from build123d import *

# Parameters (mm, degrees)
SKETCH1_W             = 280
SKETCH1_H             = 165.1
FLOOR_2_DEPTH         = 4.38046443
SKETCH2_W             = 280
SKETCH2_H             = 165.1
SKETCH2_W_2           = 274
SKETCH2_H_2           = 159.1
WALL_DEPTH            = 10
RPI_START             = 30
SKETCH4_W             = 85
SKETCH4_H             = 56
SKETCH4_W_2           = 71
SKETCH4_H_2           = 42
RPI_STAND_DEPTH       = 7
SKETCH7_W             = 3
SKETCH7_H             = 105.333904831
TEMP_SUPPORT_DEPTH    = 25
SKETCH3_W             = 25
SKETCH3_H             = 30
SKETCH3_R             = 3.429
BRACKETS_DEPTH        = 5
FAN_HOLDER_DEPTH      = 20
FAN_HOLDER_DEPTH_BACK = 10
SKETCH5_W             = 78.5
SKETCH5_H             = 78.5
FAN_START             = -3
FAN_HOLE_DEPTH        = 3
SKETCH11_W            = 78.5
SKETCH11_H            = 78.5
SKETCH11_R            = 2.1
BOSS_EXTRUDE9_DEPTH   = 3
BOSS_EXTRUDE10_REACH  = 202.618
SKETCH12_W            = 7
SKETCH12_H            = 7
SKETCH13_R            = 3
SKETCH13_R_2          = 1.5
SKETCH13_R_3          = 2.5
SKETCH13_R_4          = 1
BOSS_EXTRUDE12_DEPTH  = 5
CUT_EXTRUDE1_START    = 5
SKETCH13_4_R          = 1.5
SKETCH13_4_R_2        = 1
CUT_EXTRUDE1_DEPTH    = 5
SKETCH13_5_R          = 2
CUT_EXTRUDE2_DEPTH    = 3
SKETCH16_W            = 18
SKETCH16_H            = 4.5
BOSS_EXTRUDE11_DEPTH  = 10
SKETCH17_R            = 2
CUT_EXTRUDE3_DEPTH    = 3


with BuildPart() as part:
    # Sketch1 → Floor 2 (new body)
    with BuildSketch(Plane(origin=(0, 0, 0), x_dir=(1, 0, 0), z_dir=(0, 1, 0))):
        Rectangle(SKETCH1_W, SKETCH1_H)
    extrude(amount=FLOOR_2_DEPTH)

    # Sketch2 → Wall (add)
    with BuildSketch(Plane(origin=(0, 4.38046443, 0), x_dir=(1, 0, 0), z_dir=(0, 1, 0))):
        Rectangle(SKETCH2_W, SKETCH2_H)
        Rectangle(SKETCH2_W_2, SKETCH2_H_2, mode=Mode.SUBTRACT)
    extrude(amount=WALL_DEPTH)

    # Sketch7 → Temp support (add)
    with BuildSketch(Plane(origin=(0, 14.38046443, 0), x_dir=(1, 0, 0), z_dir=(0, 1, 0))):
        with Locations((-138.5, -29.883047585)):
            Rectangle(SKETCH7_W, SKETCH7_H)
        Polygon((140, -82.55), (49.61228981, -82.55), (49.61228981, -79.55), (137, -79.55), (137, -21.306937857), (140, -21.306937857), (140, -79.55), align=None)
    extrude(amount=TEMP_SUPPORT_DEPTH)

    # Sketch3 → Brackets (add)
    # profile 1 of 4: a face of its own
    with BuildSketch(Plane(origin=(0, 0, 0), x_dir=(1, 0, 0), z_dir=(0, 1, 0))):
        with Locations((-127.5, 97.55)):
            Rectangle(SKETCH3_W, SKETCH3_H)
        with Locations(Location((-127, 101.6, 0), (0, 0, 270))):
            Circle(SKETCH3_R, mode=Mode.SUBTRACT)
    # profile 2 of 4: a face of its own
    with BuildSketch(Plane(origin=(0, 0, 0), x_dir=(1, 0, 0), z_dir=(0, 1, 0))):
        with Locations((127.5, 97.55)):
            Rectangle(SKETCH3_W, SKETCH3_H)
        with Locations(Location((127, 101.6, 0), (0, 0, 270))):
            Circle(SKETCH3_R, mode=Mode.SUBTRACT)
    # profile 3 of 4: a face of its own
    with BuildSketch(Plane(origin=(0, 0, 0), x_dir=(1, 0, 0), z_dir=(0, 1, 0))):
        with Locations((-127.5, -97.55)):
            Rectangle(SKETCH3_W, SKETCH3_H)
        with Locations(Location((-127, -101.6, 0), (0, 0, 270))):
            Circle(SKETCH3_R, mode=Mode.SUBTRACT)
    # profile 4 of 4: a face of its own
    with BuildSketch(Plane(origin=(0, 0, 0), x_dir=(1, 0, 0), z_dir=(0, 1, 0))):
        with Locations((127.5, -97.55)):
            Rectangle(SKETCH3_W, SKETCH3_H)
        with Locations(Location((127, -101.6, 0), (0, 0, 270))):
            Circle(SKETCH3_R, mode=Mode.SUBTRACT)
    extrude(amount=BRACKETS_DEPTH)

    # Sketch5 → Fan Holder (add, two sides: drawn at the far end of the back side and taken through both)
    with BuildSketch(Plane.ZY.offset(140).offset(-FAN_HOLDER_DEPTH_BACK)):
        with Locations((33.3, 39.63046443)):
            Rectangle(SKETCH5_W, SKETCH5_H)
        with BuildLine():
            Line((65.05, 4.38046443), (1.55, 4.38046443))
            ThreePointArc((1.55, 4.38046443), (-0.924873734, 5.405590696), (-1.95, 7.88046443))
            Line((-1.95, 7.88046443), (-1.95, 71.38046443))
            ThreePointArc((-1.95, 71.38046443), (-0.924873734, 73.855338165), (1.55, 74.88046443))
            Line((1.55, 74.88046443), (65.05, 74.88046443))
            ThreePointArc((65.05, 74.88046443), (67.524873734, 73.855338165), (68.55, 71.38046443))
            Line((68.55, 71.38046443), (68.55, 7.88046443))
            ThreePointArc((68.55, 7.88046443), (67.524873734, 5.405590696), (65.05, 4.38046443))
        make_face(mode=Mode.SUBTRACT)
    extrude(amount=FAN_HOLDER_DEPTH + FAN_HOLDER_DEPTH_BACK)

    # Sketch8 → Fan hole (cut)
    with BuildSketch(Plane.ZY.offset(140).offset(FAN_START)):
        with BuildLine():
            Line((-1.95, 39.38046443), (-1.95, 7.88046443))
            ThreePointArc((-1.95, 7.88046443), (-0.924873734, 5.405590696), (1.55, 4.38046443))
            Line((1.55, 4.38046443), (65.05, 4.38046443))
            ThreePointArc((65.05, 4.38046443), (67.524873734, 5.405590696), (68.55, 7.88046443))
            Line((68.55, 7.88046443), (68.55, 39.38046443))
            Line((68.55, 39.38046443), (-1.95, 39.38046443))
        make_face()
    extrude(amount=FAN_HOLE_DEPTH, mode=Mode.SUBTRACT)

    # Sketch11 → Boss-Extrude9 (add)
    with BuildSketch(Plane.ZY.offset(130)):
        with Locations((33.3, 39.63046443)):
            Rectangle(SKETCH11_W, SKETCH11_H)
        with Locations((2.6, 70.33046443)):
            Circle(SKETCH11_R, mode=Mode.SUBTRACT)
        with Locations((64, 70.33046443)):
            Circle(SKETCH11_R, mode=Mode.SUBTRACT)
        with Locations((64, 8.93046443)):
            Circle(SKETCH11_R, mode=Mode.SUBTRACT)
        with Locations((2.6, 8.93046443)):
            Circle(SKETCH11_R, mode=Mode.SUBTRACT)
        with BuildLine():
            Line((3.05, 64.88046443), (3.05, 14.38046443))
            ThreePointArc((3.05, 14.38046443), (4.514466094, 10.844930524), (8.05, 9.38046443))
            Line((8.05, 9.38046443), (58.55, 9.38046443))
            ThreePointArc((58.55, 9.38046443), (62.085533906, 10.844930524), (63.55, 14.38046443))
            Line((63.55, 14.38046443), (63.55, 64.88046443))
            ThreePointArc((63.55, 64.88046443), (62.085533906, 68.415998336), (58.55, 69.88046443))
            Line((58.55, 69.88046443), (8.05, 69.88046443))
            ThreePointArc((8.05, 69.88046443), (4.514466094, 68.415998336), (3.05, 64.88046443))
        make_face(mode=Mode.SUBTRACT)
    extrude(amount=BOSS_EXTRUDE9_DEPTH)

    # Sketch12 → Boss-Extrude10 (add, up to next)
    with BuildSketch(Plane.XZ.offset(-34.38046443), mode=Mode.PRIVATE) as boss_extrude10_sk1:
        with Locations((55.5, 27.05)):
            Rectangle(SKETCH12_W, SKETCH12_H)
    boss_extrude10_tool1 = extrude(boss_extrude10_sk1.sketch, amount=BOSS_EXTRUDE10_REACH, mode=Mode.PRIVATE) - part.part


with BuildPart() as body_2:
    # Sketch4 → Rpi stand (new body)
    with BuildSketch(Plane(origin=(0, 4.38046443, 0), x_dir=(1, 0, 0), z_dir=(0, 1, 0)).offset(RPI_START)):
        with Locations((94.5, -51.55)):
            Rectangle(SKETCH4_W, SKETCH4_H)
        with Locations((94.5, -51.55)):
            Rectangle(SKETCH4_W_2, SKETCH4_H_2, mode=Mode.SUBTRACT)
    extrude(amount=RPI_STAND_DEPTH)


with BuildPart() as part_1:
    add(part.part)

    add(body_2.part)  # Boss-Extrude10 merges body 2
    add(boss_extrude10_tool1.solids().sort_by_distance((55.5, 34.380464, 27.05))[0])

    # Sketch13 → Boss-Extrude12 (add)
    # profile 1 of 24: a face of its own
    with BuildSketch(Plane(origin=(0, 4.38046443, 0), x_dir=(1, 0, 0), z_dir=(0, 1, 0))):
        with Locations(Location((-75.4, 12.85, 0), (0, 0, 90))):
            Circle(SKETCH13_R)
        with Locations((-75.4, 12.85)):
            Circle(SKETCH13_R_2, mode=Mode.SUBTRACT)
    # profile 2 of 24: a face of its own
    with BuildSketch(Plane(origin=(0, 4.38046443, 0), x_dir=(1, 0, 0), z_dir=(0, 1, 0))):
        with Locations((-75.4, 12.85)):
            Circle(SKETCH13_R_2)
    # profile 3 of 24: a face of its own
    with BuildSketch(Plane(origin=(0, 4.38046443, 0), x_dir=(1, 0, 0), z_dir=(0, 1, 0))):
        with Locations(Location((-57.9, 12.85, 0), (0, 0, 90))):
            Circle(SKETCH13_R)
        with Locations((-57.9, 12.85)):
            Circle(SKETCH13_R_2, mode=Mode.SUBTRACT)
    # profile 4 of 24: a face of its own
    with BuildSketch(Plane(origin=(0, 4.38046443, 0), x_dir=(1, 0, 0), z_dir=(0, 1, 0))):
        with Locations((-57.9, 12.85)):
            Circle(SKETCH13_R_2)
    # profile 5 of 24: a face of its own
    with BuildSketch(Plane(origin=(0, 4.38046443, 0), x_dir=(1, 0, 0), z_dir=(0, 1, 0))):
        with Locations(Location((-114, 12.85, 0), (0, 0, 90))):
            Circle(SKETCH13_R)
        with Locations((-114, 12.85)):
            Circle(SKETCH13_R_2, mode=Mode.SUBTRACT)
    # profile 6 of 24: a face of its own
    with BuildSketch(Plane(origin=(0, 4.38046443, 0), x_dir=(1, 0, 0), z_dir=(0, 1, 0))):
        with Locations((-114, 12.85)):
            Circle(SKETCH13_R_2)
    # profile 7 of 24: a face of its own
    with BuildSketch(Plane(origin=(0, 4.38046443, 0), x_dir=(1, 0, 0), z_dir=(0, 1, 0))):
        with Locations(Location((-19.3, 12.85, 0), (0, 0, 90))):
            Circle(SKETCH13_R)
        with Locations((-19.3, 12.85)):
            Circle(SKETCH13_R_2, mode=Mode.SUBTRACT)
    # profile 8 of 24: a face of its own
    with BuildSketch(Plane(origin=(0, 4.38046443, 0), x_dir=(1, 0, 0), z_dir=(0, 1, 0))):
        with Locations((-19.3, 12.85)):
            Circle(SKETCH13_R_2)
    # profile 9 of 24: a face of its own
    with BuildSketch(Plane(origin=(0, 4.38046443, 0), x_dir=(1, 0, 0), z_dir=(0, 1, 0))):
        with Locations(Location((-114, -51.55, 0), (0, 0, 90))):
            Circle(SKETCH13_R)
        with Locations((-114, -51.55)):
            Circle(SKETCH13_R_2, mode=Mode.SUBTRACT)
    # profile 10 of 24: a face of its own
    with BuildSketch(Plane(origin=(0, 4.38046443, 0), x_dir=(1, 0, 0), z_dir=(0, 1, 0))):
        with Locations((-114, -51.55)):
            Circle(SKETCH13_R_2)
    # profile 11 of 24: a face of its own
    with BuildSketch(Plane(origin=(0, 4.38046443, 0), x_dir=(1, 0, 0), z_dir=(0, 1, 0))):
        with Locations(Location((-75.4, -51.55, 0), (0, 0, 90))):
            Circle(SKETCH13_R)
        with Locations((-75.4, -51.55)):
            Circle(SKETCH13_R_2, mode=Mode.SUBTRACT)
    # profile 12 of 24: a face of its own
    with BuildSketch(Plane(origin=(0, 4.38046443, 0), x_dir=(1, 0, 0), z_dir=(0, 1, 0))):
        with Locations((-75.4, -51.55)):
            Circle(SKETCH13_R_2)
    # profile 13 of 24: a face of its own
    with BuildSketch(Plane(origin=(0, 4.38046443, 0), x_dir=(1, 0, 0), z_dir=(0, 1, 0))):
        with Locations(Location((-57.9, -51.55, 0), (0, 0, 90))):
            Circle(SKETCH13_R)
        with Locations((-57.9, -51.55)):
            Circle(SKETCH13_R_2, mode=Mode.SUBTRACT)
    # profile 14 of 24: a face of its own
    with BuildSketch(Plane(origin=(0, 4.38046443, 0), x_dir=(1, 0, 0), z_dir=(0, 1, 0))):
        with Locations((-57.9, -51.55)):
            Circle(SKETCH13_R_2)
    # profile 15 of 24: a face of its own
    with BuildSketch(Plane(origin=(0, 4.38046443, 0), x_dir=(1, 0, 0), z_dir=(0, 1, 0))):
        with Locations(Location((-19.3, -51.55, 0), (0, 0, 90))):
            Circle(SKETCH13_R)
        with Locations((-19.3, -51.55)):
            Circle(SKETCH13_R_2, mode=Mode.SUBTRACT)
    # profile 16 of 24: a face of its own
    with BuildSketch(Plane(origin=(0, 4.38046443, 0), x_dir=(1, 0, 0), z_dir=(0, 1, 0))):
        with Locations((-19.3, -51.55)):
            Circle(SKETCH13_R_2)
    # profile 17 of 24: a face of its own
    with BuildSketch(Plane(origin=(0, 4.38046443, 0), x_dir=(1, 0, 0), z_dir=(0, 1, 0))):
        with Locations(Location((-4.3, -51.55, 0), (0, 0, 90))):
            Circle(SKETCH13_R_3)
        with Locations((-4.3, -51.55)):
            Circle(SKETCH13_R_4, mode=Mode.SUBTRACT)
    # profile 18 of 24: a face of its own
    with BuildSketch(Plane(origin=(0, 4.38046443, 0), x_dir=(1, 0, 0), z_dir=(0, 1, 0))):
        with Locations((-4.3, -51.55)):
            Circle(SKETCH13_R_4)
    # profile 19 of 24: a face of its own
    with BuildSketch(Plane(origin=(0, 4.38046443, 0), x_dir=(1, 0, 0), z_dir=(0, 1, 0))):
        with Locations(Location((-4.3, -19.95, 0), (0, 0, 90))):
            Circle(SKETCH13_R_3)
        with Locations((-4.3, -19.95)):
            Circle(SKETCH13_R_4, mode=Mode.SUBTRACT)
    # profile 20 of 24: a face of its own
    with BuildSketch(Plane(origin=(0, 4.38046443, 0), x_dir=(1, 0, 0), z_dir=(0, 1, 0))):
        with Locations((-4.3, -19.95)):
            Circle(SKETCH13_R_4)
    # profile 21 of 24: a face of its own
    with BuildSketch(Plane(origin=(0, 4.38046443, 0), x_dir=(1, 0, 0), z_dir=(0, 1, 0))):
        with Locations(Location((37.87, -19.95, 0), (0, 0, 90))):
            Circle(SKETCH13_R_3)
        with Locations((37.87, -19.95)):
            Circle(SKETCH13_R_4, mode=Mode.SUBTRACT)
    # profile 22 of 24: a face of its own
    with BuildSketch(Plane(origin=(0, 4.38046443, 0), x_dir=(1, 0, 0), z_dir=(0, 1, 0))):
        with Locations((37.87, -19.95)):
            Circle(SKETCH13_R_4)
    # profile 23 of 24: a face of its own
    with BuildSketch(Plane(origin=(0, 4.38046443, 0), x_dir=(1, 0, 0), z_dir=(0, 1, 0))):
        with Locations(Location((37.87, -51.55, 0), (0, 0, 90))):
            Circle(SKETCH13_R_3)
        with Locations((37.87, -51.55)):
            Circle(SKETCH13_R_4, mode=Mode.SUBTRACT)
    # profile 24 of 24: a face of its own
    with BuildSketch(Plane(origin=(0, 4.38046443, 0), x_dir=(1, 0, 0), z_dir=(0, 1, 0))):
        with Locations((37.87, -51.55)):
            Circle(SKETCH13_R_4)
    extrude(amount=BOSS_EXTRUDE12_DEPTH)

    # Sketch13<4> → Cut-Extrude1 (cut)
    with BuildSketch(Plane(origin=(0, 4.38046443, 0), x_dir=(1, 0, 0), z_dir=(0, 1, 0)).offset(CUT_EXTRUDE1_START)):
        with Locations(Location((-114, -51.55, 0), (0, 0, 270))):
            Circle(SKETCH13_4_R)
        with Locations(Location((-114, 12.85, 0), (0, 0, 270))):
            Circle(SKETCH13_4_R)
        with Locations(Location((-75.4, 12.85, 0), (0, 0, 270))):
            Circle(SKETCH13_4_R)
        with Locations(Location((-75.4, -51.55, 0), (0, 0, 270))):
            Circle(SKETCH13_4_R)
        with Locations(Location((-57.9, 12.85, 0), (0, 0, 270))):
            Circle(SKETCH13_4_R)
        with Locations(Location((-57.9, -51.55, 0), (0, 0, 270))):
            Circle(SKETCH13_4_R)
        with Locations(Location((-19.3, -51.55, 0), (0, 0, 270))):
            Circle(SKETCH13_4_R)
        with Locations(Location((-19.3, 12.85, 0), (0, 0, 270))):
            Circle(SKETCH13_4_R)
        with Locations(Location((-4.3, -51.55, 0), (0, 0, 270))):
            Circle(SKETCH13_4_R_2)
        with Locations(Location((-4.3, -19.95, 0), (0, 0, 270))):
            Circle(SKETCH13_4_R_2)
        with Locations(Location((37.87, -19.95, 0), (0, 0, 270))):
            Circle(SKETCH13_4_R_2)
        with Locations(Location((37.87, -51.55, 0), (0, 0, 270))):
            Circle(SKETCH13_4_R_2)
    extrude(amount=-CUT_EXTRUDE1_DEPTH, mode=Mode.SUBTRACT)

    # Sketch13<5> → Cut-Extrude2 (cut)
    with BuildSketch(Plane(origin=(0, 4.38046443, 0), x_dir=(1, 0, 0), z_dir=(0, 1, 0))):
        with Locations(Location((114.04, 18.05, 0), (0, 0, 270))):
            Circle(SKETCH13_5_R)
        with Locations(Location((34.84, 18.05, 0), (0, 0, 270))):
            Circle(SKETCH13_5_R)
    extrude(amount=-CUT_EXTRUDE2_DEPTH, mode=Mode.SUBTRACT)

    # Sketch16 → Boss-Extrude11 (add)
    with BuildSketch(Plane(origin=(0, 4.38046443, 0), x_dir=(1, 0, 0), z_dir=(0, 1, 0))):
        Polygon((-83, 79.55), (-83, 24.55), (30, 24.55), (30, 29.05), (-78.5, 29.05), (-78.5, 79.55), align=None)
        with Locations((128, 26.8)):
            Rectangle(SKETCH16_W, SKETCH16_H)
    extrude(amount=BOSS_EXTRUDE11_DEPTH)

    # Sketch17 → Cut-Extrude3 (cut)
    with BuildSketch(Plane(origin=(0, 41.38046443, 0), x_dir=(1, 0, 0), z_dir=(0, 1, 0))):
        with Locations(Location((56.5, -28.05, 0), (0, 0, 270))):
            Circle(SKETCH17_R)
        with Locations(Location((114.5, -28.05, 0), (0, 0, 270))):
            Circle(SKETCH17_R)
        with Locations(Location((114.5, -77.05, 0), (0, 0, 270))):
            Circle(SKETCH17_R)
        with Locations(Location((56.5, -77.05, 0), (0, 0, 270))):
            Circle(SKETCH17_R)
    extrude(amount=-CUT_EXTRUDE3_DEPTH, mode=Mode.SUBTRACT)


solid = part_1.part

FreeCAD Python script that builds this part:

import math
import FreeCAD as App
import Part
import Sketcher

V = App.Vector
Q = App.Units.Quantity

doc = App.newDocument("Part")
params = doc.addObject("Spreadsheet::Sheet", "Params")
for row, (alias, value) in enumerate([
    ("sketch1_width", "280 mm"),
    ("sketch1_height", "165.1 mm"),
    ("pad1_length", "4.380464 mm"),
    ("sketch2_width", "280 mm"),
    ("sketch2_width2", "274 mm"),
    ("sketch2_height", "165.1 mm"),
    ("sketch2_height2", "159.1 mm"),
    ("pad2_length", "10 mm"),
    ("sketch3_width", "3 mm"),
    ("pad3_length", "25 mm"),
    ("sketch4_width", "25 mm"),
    ("sketch4_height", "30 mm"),
    ("pad4_length", "5 mm"),
    ("sketch5_radius", "3.5 mm"),
    ("sketch5_width", "78.5 mm"),
    ("sketch5_width2", "63.5 mm"),
    ("pad5_length", "20 mm"),
    ("pad5_length2", "10 mm"),
    ("sketch6_radius", "3.5 mm"),
    ("sketch6_width", "31.5 mm"),
    ("sketch6_height", "63.5 mm"),
    ("pocket1_length", "3 mm"),
    ("sketch7_radius", "5 mm"),
    ("sketch7_diameter", "4.2 mm"),
    ("sketch7_width", "78.5 mm"),
    ("sketch7_width2", "50.5 mm"),
    ("pad6_length", "3 mm"),
    ("sketch8_width", "85 mm"),
    ("sketch8_width2", "71 mm"),
    ("sketch8_height", "56 mm"),
    ("sketch8_height2", "42 mm"),
    ("pad7_length", "7 mm"),
    ("sketch9_width", "7 mm"),
    ("sketch10_diameter", "6 mm"),
    ("sketch10_diameter2", "5 mm"),
    ("pad9_length", "5 mm"),
    ("sketch11_diameter", "3 mm"),
    ("sketch11_diameter2", "2 mm"),
    ("pocket2_length", "5 mm"),
    ("sketch12_diameter", "4 mm"),
    ("pocket3_length", "3 mm"),
    ("sketch13_width", "113 mm"),
    ("sketch13_width2", "18 mm"),
    ("sketch13_height", "55 mm"),
    ("sketch13_width3", "108.5 mm"),
    ("pad10_length", "10 mm"),
    ("sketch14_diameter", "4 mm"),
    ("pocket4_length", "3 mm"),
], start=1):
    params.set(f"A{row}", alias)
    params.set(f"B{row}", "=" + value)
    params.setAlias(f"B{row}", alias)

body = doc.addObject("PartDesign::Body", "Body")

# Sketch on XZ plane
sketch1 = body.newObject("Sketcher::SketchObject", "Sketch")
sketch1.AttachmentSupport = (doc.getObject("XZ_Plane"), [""])
sketch1.MapMode = "FlatFace"
sketch1.addGeometry([
    Part.LineSegment(V(-140, -83, 0), V(-140, 83, 0)),
    Part.LineSegment(V(-140, 83, 0), V(140, 83, 0)),
    Part.LineSegment(V(140, 83, 0), V(140, -83, 0)),
    Part.LineSegment(V(140, -83, 0), V(-140, -83, 0)),
], False)
sketch1.addConstraint([
    Sketcher.Constraint("Coincident", 0, 2, 1, 1),
    Sketcher.Constraint("Coincident", 1, 2, 2, 1),
    Sketcher.Constraint("Coincident", 2, 2, 3, 1),
    Sketcher.Constraint("Coincident", 3, 2, 0, 1),
    Sketcher.Constraint("Vertical", 0),
    Sketcher.Constraint("Horizontal", 1),
    Sketcher.Constraint("Vertical", 2),
    Sketcher.Constraint("Horizontal", 3),
    Sketcher.Constraint("Symmetric", 0, 2, 2, 2, -1, 1),
    Sketcher.Constraint("DistanceX", 1, 1, 1, 2, Q("280 mm")),
    Sketcher.Constraint("DistanceY", 0, 1, 0, 2, Q("165.1 mm")),
])
sketch1.setExpression("Constraints[9]", "Params.sketch1_width")
sketch1.setExpression("Constraints[10]", "Params.sketch1_height")
pad1 = body.newObject("PartDesign::Pad", "Pad")
pad1.Profile = sketch1
pad1.setExpression("Length", "Params.pad1_length")
pad1.Reversed = True

# Sketch on XZ plane
sketch2 = body.newObject("Sketcher::SketchObject", "Sketch001")
sketch2.AttachmentSupport = (doc.getObject("XZ_Plane"), [""])
sketch2.MapMode = "FlatFace"
sketch2.AttachmentOffset = App.Placement(V(0, 0, -4.380464), App.Rotation())
sketch2.addGeometry([
    Part.LineSegment(V(-140, -83, 0), V(-140, 83, 0)),  # 0
    Part.LineSegment(V(-140, 83, 0), V(140, 83, 0)),  # 1
    Part.LineSegment(V(140, 83, 0), V(140, -83, 0)),  # 2
    Part.LineSegment(V(140, -83, 0), V(-140, -83, 0)),  # 3
    Part.LineSegment(V(137, 80, 0), V(-137, 80, 0)),  # 4
    Part.LineSegment(V(-137, 80, 0), V(-137, -80, 0)),  # 5
    Part.LineSegment(V(-137, -80, 0), V(137, -80, 0)),  # 6
    Part.LineSegment(V(137, -80, 0), V(137, 80, 0)),  # 7
], False)
sketch2.addConstraint([
    Sketcher.Constraint("Coincident", 0, 2, 1, 1),
    Sketcher.Constraint("Coincident", 1, 2, 2, 1),
    Sketcher.Constraint("Coincident", 2, 2, 3, 1),
    Sketcher.Constraint("Coincident", 3, 2, 0, 1),
    Sketcher.Constraint("Coincident", 4, 2, 5, 1),
    Sketcher.Constraint("Coincident", 5, 2, 6, 1),
    Sketcher.Constraint("Coincident", 6, 2, 7, 1),
    Sketcher.Constraint("Coincident", 7, 2, 4, 1),
    Sketcher.Constraint("Vertical", 0),
    Sketcher.Constraint("Horizontal", 1),
    Sketcher.Constraint("Vertical", 2),
    Sketcher.Constraint("Horizontal", 3),
    Sketcher.Constraint("Horizontal", 4),
    Sketcher.Constraint("Vertical", 5),
    Sketcher.Constraint("Horizontal", 6),
    Sketcher.Constraint("Vertical", 7),
    Sketcher.Constraint("Symmetric", 0, 2, 2, 2, -1, 1),
    Sketcher.Constraint("Symmetric", 4, 2, 6, 2, -1, 1),
    Sketcher.Constraint("DistanceX", 1, 1, 1, 2, Q("280 mm")),
    Sketcher.Constraint("DistanceX", 4, 2, 4, 1, Q("274 mm")),
    Sketcher.Constraint("DistanceY", 0, 1, 0, 2, Q("165.1 mm")),
    Sketcher.Constraint("DistanceY", 5, 2, 5, 1, Q("159.1 mm")),
])
sketch2.setExpression("Constraints[18]", "Params.sketch2_width")
sketch2.setExpression("Constraints[19]", "Params.sketch2_width2")
sketch2.setExpression("Constraints[20]", "Params.sketch2_height")
sketch2.setExpression("Constraints[21]", "Params.sketch2_height2")
pad2 = body.newObject("PartDesign::Pad", "Pad001")
pad2.Profile = sketch2
pad2.setExpression("Length", "Params.pad2_length")
pad2.Reversed = True

# Sketch on XZ plane
sketch3 = body.newObject("Sketcher::SketchObject", "Sketch002")
sketch3.AttachmentSupport = (doc.getObject("XZ_Plane"), [""])
sketch3.MapMode = "FlatFace"
sketch3.AttachmentOffset = App.Placement(V(0, 0, -14.380464), App.Rotation())
sketch3.addGeometry([
    Part.LineSegment(V(-140, -22.8, 0), V(-140, 82.6, 0)),  # 0
    Part.LineSegment(V(-140, 82.6, 0), V(-137, 82.6, 0)),  # 1
    Part.LineSegment(V(-137, 82.6, 0), V(-137, -22.8, 0)),  # 2
    Part.LineSegment(V(-137, -22.8, 0), V(-140, -22.8, 0)),  # 3
    Part.LineSegment(V(49.6, 82.5, 0), V(140, 82.5, 0)),  # 4
    Part.LineSegment(V(140, 82.5, 0), V(140, 21.3, 0)),  # 5
    Part.LineSegment(V(140, 21.3, 0), V(137, 21.3, 0)),  # 6
    Part.LineSegment(V(137, 21.3, 0), V(137, 79.5, 0)),  # 7
    Part.LineSegment(V(137, 79.5, 0), V(49.6, 79.5, 0)),  # 8
    Part.LineSegment(V(49.6, 79.5, 0), V(49.6, 82.5, 0)),  # 9
], False)
sketch3.addConstraint([
    Sketcher.Constraint("Coincident", 0, 2, 1, 1),
    Sketcher.Constraint("Coincident", 1, 2, 2, 1),
    Sketcher.Constraint("Coincident", 2, 2, 3, 1),
    Sketcher.Constraint("Coincident", 3, 2, 0, 1),
    Sketcher.Constraint("Coincident", 4, 2, 5, 1),
    Sketcher.Constraint("Coincident", 5, 2, 6, 1),
    Sketcher.Constraint("Coincident", 6, 2, 7, 1),
    Sketcher.Constraint("Coincident", 7, 2, 8, 1),
    Sketcher.Constraint("Coincident", 8, 2, 9, 1),
    Sketcher.Constraint("Coincident", 9, 2, 4, 1),
    Sketcher.Constraint("Vertical", 0),
    Sketcher.Constraint("Horizontal", 1),
    Sketcher.Constraint("Vertical", 2),
    Sketcher.Constraint("Horizontal", 3),
    Sketcher.Constraint("Horizontal", 4),
    Sketcher.Constraint("Vertical", 5),
    Sketcher.Constraint("Horizontal", 6),
    Sketcher.Constraint("Vertical", 7),
    Sketcher.Constraint("Horizontal", 8),
    Sketcher.Constraint("Vertical", 9),
    Sketcher.Constraint("Symmetric", 0, 2, 4, 2, -2),
    Sketcher.Constraint("Equal", 3, 6),
    Sketcher.Constraint("Equal", 6, 9),
    Sketcher.Constraint("DistanceX", 1, 1, 1, 2, Q("3 mm")),
    Sketcher.Constraint("DistanceX", 0, 2, -1, 1, Q("140 mm")),
    Sketcher.Constraint("DistanceY", -1, 1, 0, 2, Q("82.55 mm")),
    Sketcher.Constraint("DistanceX", 4, 1, 4, 2, Q("90.38771 mm")),
    Sketcher.Constraint("DistanceY", 0, 1, 0, 2, Q("105.333905 mm")),
    Sketcher.Constraint("DistanceY", 5, 2, 5, 1, Q("61.243062 mm")),
])
sketch3.setExpression("Constraints[23]", "Params.sketch3_width")
pad3 = body.newObject("PartDesign::Pad", "Pad002")
pad3.Profile = sketch3
pad3.setExpression("Length", "Params.pad3_length")
pad3.Reversed = True

# Sketch on XZ plane
sketch4 = body.newObject("Sketcher::SketchObject", "Sketch003")
sketch4.AttachmentSupport = (doc.getObject("XZ_Plane"), [""])
sketch4.MapMode = "FlatFace"
sketch4.addGeometry([
    Part.LineSegment(V(-140, -112.5, 0), V(-140, -82.5, 0)),  # 0
    Part.LineSegment(V(-140, -82.5, 0), V(-115, -82.5, 0)),  # 1
    Part.LineSegment(V(-115, -82.5, 0), V(-115, -112.5, 0)),  # 2
    Part.LineSegment(V(-115, -112.5, 0), V(-140, -112.5, 0)),  # 3
    Part.Circle(V(-127, -101.6, 0), V(0, 0, 1), 3.4),  # 4
    Part.LineSegment(V(115, -112.5, 0), V(115, -82.5, 0)),  # 5
    Part.LineSegment(V(115, -82.5, 0), V(140, -82.5, 0)),  # 6
    Part.LineSegment(V(140, -82.5, 0), V(140, -112.5, 0)),  # 7
    Part.LineSegment(V(140, -112.5, 0), V(115, -112.5, 0)),  # 8
    Part.Circle(V(127, -101.6, 0), V(0, 0, 1), 3.4),  # 9
    Part.LineSegment(V(-140, 82.5, 0), V(-140, 112.5, 0)),  # 10
    Part.LineSegment(V(-140, 112.5, 0), V(-115, 112.5, 0)),  # 11
    Part.LineSegment(V(-115, 112.5, 0), V(-115, 82.5, 0)),  # 12
    Part.LineSegment(V(-115, 82.5, 0), V(-140, 82.5, 0)),  # 13
    Part.Circle(V(-127, 101.6, 0), V(0, 0, 1), 3.4),  # 14
    Part.LineSegment(V(115, 82.5, 0), V(115, 112.5, 0)),  # 15
    Part.LineSegment(V(115, 112.5, 0), V(140, 112.5, 0)),  # 16
    Part.LineSegment(V(140, 112.5, 0), V(140, 82.5, 0)),  # 17
    Part.LineSegment(V(140, 82.5, 0), V(115, 82.5, 0)),  # 18
    Part.Circle(V(127, 101.6, 0), V(0, 0, 1), 3.4),  # 19
], False)
sketch4.addConstraint([
    Sketcher.Constraint("Coincident", 0, 2, 1, 1),
    Sketcher.Constraint("Coincident", 1, 2, 2, 1),
    Sketcher.Constraint("Coincident", 2, 2, 3, 1),
    Sketcher.Constraint("Coincident", 3, 2, 0, 1),
    Sketcher.Constraint("Coincident", 5, 2, 6, 1),
    Sketcher.Constraint("Coincident", 6, 2, 7, 1),
    Sketcher.Constraint("Coincident", 7, 2, 8, 1),
    Sketcher.Constraint("Coincident", 8, 2, 5, 1),
    Sketcher.Constraint("Coincident", 10, 2, 11, 1),
    Sketcher.Constraint("Coincident", 11, 2, 12, 1),
    Sketcher.Constraint("Coincident", 12, 2, 13, 1),
    Sketcher.Constraint("Coincident", 13, 2, 10, 1),
    Sketcher.Constraint("Coincident", 15, 2, 16, 1),
    Sketcher.Constraint("Coincident", 16, 2, 17, 1),
    Sketcher.Constraint("Coincident", 17, 2, 18, 1),
    Sketcher.Constraint("Coincident", 18, 2, 15, 1),
    Sketcher.Constraint("Vertical", 0),
    Sketcher.Constraint("Horizontal", 1),
    Sketcher.Constraint("Vertical", 2),
    Sketcher.Constraint("Horizontal", 3),
    Sketcher.Constraint("Vertical", 5),
    Sketcher.Constraint("Horizontal", 6),
    Sketcher.Constraint("Vertical", 7),
    Sketcher.Constraint("Horizontal", 8),
    Sketcher.Constraint("Vertical", 10),
    Sketcher.Constraint("Horizontal", 11),
    Sketcher.Constraint("Vertical", 12),
    Sketcher.Constraint("Horizontal", 13),
    Sketcher.Constraint("Vertical", 15),
    Sketcher.Constraint("Horizontal", 16),
    Sketcher.Constraint("Vertical", 17),
    Sketcher.Constraint("Horizontal", 18),
    Sketcher.Constraint("Equal", 4, 9),
    Sketcher.Constraint("Equal", 9, 14),
    Sketcher.Constraint("Equal", 14, 19),
    Sketcher.Constraint("Symmetric", 9, 3, 14, 3, -1, 1),
    Sketcher.Constraint("Symmetric", 4, 3, 19, 3, -1, 1),
    Sketcher.Constraint("Symmetric", 7, 2, 10, 2, -1, 1),
    Sketcher.Constraint("Symmetric", 5, 2, 12, 2, -1, 1),
    Sketcher.Constraint("Symmetric", 2, 2, 15, 2, -1, 1),
    Sketcher.Constraint("Symmetric", 0, 2, 17, 2, -1, 1),
    Sketcher.Constraint("Symmetric", 4, 3, 9, 3, -2),
    Sketcher.Constraint("Symmetric", 1, 2, 5, 2, -2),
    Sketcher.Constraint("Symmetric", 3, 2, 7, 2, -2),
    Sketcher.Constraint("DistanceX", 1, 1, 1, 2, Q("25 mm")),
    Sketcher.Constraint("DistanceY", 0, 1, 0, 2, Q("30 mm")),
    Sketcher.Constraint("Diameter", 4, Q("6.858 mm")),
    Sketcher.Constraint("DistanceX", 4, 3, -1, 1, Q("127 mm")),
    Sketcher.Constraint("DistanceX", 0, 2, -1, 1, Q("140 mm")),
    Sketcher.Constraint("DistanceY", 4, 3, -1, 1, Q("101.6 mm")),
    Sketcher.Constraint("DistanceY", 0, 2, 10, 2, Q("195.1 mm")),
])
sketch4.setExpression("Constraints[44]", "Params.sketch4_width")
sketch4.setExpression("Constraints[45]", "Params.sketch4_height")
pad4 = body.newObject("PartDesign::Pad", "Pad003")
pad4.Profile = sketch4
pad4.setExpression("Length", "Params.pad4_length")
pad4.Reversed = True

# Sketch on YZ plane
sketch5 = body.newObject("Sketcher::SketchObject", "Sketch004")
sketch5.AttachmentSupport = (doc.getObject("YZ_Plane"), [""])
sketch5.MapMode = "FlatFace"
sketch5.AttachmentOffset = App.Placement(V(0, 0, -140), App.Rotation())
sketch5.addGeometry([
    Part.LineSegment(V(78.9, -6, 0), V(0.4, -6, 0)),  # 0
    Part.LineSegment(V(0.4, -6, 0), V(0.4, 72.5, 0)),  # 1
    Part.LineSegment(V(0.4, 72.5, 0), V(78.9, 72.5, 0)),  # 2
    Part.LineSegment(V(78.9, 72.5, 0), V(78.9, -6, 0)),  # 3
    Part.ArcOfCircle(Part.Circle(V(7.9, 65, 0), V(0, 0, 1), 3.5), math.radians(90), math.radians(180)),  # 4
    Part.LineSegment(V(4.4, 65, 0), V(4.4, 1.6, 0)),  # 5
    Part.ArcOfCircle(Part.Circle(V(7.9, 1.6, 0), V(0, 0, 1), 3.5), math.radians(-180), math.radians(-90)),  # 6
    Part.LineSegment(V(7.9, -1.9, 0), V(71.4, -1.9, 0)),  # 7
    Part.ArcOfCircle(Part.Circle(V(71.4, 1.5, 0), V(0, 0, 1), 3.5), math.radians(-90), math.radians(0)),  # 8
    Part.LineSegment(V(74.9, 1.6, 0), V(74.9, 65, 0)),  # 9
    Part.ArcOfCircle(Part.Circle(V(71.4, 65.1, 0), V(0, 0, 1), 3.5), math.radians(0), math.radians(90)),  # 10
    Part.LineSegment(V(71.4, 68.5, 0), V(7.9, 68.5, 0)),  # 11
], False)
sketch5.addConstraint([
    Sketcher.Constraint("Coincident", 0, 2, 1, 1),
    Sketcher.Constraint("Coincident", 1, 2, 2, 1),
    Sketcher.Constraint("Coincident", 2, 2, 3, 1),
    Sketcher.Constraint("Coincident", 3, 2, 0, 1),
    Sketcher.Constraint("Tangent", 4, 2, 5, 1),
    Sketcher.Constraint("Tangent", 5, 2, 6, 1),
    Sketcher.Constraint("Tangent", 6, 2, 7, 1),
    Sketcher.Constraint("Tangent", 7, 2, 8, 1),
    Sketcher.Constraint("Tangent", 8, 2, 9, 1),
    Sketcher.Constraint("Tangent", 9, 2, 10, 1),
    Sketcher.Constraint("Tangent", 10, 2, 11, 1),
    Sketcher.Constraint("Tangent", 11, 2, 4, 1),
    Sketcher.Constraint("Horizontal", 0),
    Sketcher.Constraint("Vertical", 1),
    Sketcher.Constraint("Horizontal", 2),
    Sketcher.Constraint("Vertical", 3),
    Sketcher.Constraint("Vertical", 5),
    Sketcher.Constraint("Horizontal", 7),
    Sketcher.Constraint("Vertical", 9),
    Sketcher.Constraint("Horizontal", 11),
    Sketcher.Constraint("Equal", 4, 6),
    Sketcher.Constraint("Equal", 6, 8),
    Sketcher.Constraint("Equal", 8, 10),
    Sketcher.Constraint("Equal", 2, 1),
    Sketcher.Constraint("Equal", 11, 5),
    Sketcher.Constraint("Radius", 4, Q("3.5 mm")),
    Sketcher.Constraint("DistanceX", 0, 2, 0, 1, Q("78.5 mm")),
    Sketcher.Constraint("DistanceX", 7, 1, 7, 2, Q("63.5 mm")),
    Sketcher.Constraint("DistanceY", 0, 2, 4, 3, Q("71 mm")),
    Sketcher.Constraint("DistanceX", 0, 2, 8, 3, Q("71 mm")),
    Sketcher.Constraint("DistanceY", -1, 1, 4, 3, Q("65.05 mm")),
    Sketcher.Constraint("DistanceX", -1, 1, 4, 3, Q("7.880464 mm")),
])
sketch5.setExpression("Constraints[25]", "Params.sketch5_radius")
sketch5.setExpression("Constraints[26]", "Params.sketch5_width")
sketch5.setExpression("Constraints[27]", "Params.sketch5_width2")
pad5 = body.newObject("PartDesign::Pad", "Pad004")
pad5.Profile = sketch5
pad5.Type = "TwoLengths"
pad5.setExpression("Length", "Params.pad5_length")
pad5.setExpression("Length2", "Params.pad5_length2")
pad5.Reversed = True

# Sketch on YZ plane
sketch6 = body.newObject("Sketcher::SketchObject", "Sketch005")
sketch6.AttachmentSupport = (doc.getObject("YZ_Plane"), [""])
sketch6.MapMode = "FlatFace"
sketch6.AttachmentOffset = App.Placement(V(0, 0, -137), App.Rotation())
sketch6.addGeometry([
    Part.LineSegment(V(39.4, -1.9, 0), V(7.9, -1.9, 0)),  # 0
    Part.ArcOfCircle(Part.Circle(V(7.9, 1.6, 0), V(0, 0, 1), 3.5), math.radians(-180), math.radians(-90)),  # 1
    Part.LineSegment(V(4.4, 1.6, 0), V(4.4, 65, 0)),  # 2
    Part.ArcOfCircle(Part.Circle(V(7.9, 65, 0), V(0, 0, 1), 3.5), math.radians(90), math.radians(180)),  # 3
    Part.LineSegment(V(7.9, 68.5, 0), V(39.4, 68.5, 0)),  # 4
    Part.LineSegment(V(39.4, 68.5, 0), V(39.4, -1.9, 0)),  # 5
], False)
sketch6.addConstraint([
    Sketcher.Constraint("Tangent", 0, 2, 1, 2),
    Sketcher.Constraint("Tangent", 1, 1, 2, 1),
    Sketcher.Constraint("Tangent", 2, 2, 3, 2),
    Sketcher.Constraint("Tangent", 3, 1, 4, 1),
    Sketcher.Constraint("Coincident", 4, 2, 5, 1),
    Sketcher.Constraint("Coincident", 5, 2, 0, 1),
    Sketcher.Constraint("Horizontal", 0),
    Sketcher.Constraint("Vertical", 2),
    Sketcher.Constraint("Horizontal", 4),
    Sketcher.Constraint("Vertical", 5),
    Sketcher.Constraint("Equal", 1, 3),
    Sketcher.Constraint("Radius", 1, Q("3.5 mm")),
    Sketcher.Constraint("DistanceX", 0, 2, 0, 1, Q("31.5 mm")),
    Sketcher.Constraint("DistanceY", 2, 1, 2, 2, Q("63.5 mm")),
    Sketcher.Constraint("DistanceY", -1, 1, 1, 3, Q("1.55 mm")),
    Sketcher.Constraint("DistanceX", -1, 1, 1, 3, Q("7.880464 mm")),
])
sketch6.setExpression("Constraints[11]", "Params.sketch6_radius")
sketch6.setExpression("Constraints[12]", "Params.sketch6_width")
sketch6.setExpression("Constraints[13]", "Params.sketch6_height")
pocket1 = body.newObject("PartDesign::Pocket", "Pocket")
pocket1.Profile = sketch6
pocket1.setExpression("Length", "Params.pocket1_length")

# Sketch on YZ plane
sketch7 = body.newObject("Sketcher::SketchObject", "Sketch006")
sketch7.AttachmentSupport = (doc.getObject("YZ_Plane"), [""])
sketch7.MapMode = "FlatFace"
sketch7.AttachmentOffset = App.Placement(V(0, 0, -130), App.Rotation())
sketch7.addGeometry([
    Part.LineSegment(V(78.9, -6, 0), V(0.4, -6, 0)),  # 0
    Part.LineSegment(V(0.4, -6, 0), V(0.4, 72.5, 0)),  # 1
    Part.LineSegment(V(0.4, 72.5, 0), V(78.9, 72.5, 0)),  # 2
    Part.LineSegment(V(78.9, 72.5, 0), V(78.9, -6, 0)),  # 3
    Part.Circle(V(8.9, 2.6, 0), V(0, 0, 1), 2.1),  # 4
    Part.Circle(V(8.9, 64, 0), V(0, 0, 1), 2.1),  # 5
    Part.Circle(V(70.3, 2.6, 0), V(0, 0, 1), 2.1),  # 6
    Part.LineSegment(V(14.4, 3, 0), V(64.9, 3, 0)),  # 7
    Part.ArcOfCircle(Part.Circle(V(64.9, 8.1, 0), V(0, 0, 1), 5), math.radians(-90), math.radians(0)),  # 8
    Part.LineSegment(V(69.9, 8.1, 0), V(69.9, 58.5, 0)),  # 9
    Part.ArcOfCircle(Part.Circle(V(64.9, 58.5, 0), V(0, 0, 1), 5), math.radians(0), math.radians(90)),  # 10
    Part.LineSegment(V(64.9, 63.5, 0), V(14.4, 63.5, 0)),  # 11
    Part.ArcOfCircle(Part.Circle(V(14.4, 58.5, 0), V(0, 0, 1), 5), math.radians(90), math.radians(180)),  # 12
    Part.LineSegment(V(9.4, 58.5, 0), V(9.4, 8.1, 0)),  # 13
    Part.ArcOfCircle(Part.Circle(V(14.4, 8.1, 0), V(0, 0, 1), 5), math.radians(180), math.radians(270)),  # 14
    Part.Circle(V(70.3, 64, 0), V(0, 0, 1), 2.1),  # 15
], False)
sketch7.addConstraint([
    Sketcher.Constraint("Coincident", 0, 2, 1, 1),
    Sketcher.Constraint("Coincident", 1, 2, 2, 1),
    Sketcher.Constraint("Coincident", 2, 2, 3, 1),
    Sketcher.Constraint("Coincident", 3, 2, 0, 1),
    Sketcher.Constraint("Tangent", 7, 2, 8, 1),
    Sketcher.Constraint("Tangent", 8, 2, 9, 1),
    Sketcher.Constraint("Tangent", 9, 2, 10, 1),
    Sketcher.Constraint("Tangent", 10, 2, 11, 1),
    Sketcher.Constraint("Tangent", 11, 2, 12, 1),
    Sketcher.Constraint("Tangent", 12, 2, 13, 1),
    Sketcher.Constraint("Tangent", 13, 2, 14, 1),
    Sketcher.Constraint("Tangent", 14, 2, 7, 1),
    Sketcher.Constraint("Horizontal", 0),
    Sketcher.Constraint("Vertical", 1),
    Sketcher.Constraint("Horizontal", 2),
    Sketcher.Constraint("Vertical", 3),
    Sketcher.Constraint("Horizontal", 7),
    Sketcher.Constraint("Vertical", 9),
    Sketcher.Constraint("Horizontal", 11),
    Sketcher.Constraint("Vertical", 13),
    Sketcher.Constraint("Equal", 4, 5),
    Sketcher.Constraint("Equal", 5, 6),
    Sketcher.Constraint("Equal", 8, 10),
    Sketcher.Constraint("Equal", 10, 12),
    Sketcher.Constraint("Equal", 12, 14),
    Sketcher.Constraint("Equal", 6, 15),
    Sketcher.Constraint("Horizontal", 4, 3, 6, 3),
    Sketcher.Constraint("Horizontal", 5, 3, 15, 3),
    Sketcher.Constraint("Vertical", 4, 3, 5, 3),
    Sketcher.Constraint("Vertical", 6, 3, 15, 3),
    Sketcher.Constraint("Equal", 2, 1),
    Sketcher.Constraint("Equal", 11, 9),
    Sketcher.Constraint("Radius", 8, Q("5 mm")),
    Sketcher.Constraint("Diameter", 4, Q("4.2 mm")),
    Sketcher.Constraint("DistanceX", 0, 2, 0, 1, Q("78.5 mm")),
    Sketcher.Constraint("DistanceX", 7, 1, 7, 2, Q("50.5 mm")),
    Sketcher.Constraint("DistanceY", -1, 1, 5, 3, Q("64 mm")),
    Sketcher.Constraint("DistanceX", 0, 2, 14, 3, Q("14 mm")),
    Sketcher.Constraint("DistanceY", 0, 2, 14, 3, Q("14 mm")),
    Sketcher.Constraint("DistanceY", -1, 1, 4, 3, Q("2.6 mm")),
    Sketcher.Constraint("DistanceX", 4, 3, 6, 3, Q("61.4 mm")),
    Sketcher.Constraint("DistanceY", -1, 1, 8, 3, Q("8.05 mm")),
    Sketcher.Constraint("DistanceX", 8, 3, 6, 3, Q("5.45 mm")),
    Sketcher.Constraint("DistanceX", -1, 1, 4, 3, Q("8.930464 mm")),
])
sketch7.setExpression("Constraints[32]", "Params.sketch7_radius")
sketch7.setExpression("Constraints[33]", "Params.sketch7_diameter")
sketch7.setExpression("Constraints[34]", "Params.sketch7_width")
sketch7.setExpression("Constraints[35]", "Params.sketch7_width2")
pad6 = body.newObject("PartDesign::Pad", "Pad005")
pad6.Profile = sketch7
pad6.setExpression("Length", "Params.pad6_length")
pad6.Reversed = True
body2 = doc.addObject("PartDesign::Body", "Body001")

# Sketch on XZ plane
sketch8 = body2.newObject("Sketcher::SketchObject", "Sketch007")
sketch8.AttachmentSupport = (doc.getObject("XZ_Plane001"), [""])
sketch8.MapMode = "FlatFace"
sketch8.AttachmentOffset = App.Placement(V(0, 0, -34.380464), App.Rotation())
sketch8.addGeometry([
    Part.LineSegment(V(52, 24, 0), V(52, 80, 0)),  # 0
    Part.LineSegment(V(52, 80, 0), V(137, 80, 0)),  # 1
    Part.LineSegment(V(137, 80, 0), V(137, 24, 0)),  # 2
    Part.LineSegment(V(137, 24, 0), V(52, 24, 0)),  # 3
    Part.LineSegment(V(130, 73, 0), V(59, 73, 0)),  # 4
    Part.LineSegment(V(59, 73, 0), V(59, 31, 0)),  # 5
    Part.LineSegment(V(59, 31, 0), V(130, 31, 0)),  # 6
    Part.LineSegment(V(130, 31, 0), V(130, 73, 0)),  # 7
], False)
sketch8.addConstraint([
    Sketcher.Constraint("Coincident", 0, 2, 1, 1),
    Sketcher.Constraint("Coincident", 1, 2, 2, 1),
    Sketcher.Constraint("Coincident", 2, 2, 3, 1),
    Sketcher.Constraint("Coincident", 3, 2, 0, 1),
    Sketcher.Constraint("Coincident", 4, 2, 5, 1),
    Sketcher.Constraint("Coincident", 5, 2, 6, 1),
    Sketcher.Constraint("Coincident", 6, 2, 7, 1),
    Sketcher.Constraint("Coincident", 7, 2, 4, 1),
    Sketcher.Constraint("Vertical", 0),
    Sketcher.Constraint("Horizontal", 1),
    Sketcher.Constraint("Vertical", 2),
    Sketcher.Constraint("Horizontal", 3),
    Sketcher.Constraint("Horizontal", 4),
    Sketcher.Constraint("Vertical", 5),
    Sketcher.Constraint("Horizontal", 6),
    Sketcher.Constraint("Vertical", 7),
    Sketcher.Constraint("DistanceX", 1, 1, 1, 2, Q("85 mm")),
    Sketcher.Constraint("DistanceX", 4, 2, 4, 1, Q("71 mm")),
    Sketcher.Constraint("DistanceY", 0, 1, 0, 2, Q("56 mm")),
    Sketcher.Constraint("DistanceY", 5, 2, 5, 1, Q("42 mm")),
    Sketcher.Constraint("DistanceX", -1, 1, 0, 2, Q("52 mm")),
    Sketcher.Constraint("DistanceX", -1, 1, 4, 2, Q("59 mm")),
    Sketcher.Constraint("DistanceY", 4, 2, 0, 2, Q("7 mm")),
    Sketcher.Constraint("DistanceY", -1, 1, 0, 2, Q("79.55 mm")),
])
sketch8.setExpression("Constraints[16]", "Params.sketch8_width")
sketch8.setExpression("Constraints[17]", "Params.sketch8_width2")
sketch8.setExpression("Constraints[18]", "Params.sketch8_height")
sketch8.setExpression("Constraints[19]", "Params.sketch8_height2")
pad7 = body2.newObject("PartDesign::Pad", "Pad006")
pad7.Profile = sketch8
pad7.setExpression("Length", "Params.pad7_length")
pad7.Reversed = True
doc.recompute()

boolean = body.newObject("PartDesign::Boolean", "Boolean")
boolean.Type = "Fuse"
boolean.addObjects([body2])

# Sketch on XZ plane
sketch9 = body.newObject("Sketcher::SketchObject", "Sketch008")
sketch9.AttachmentSupport = (doc.getObject("XZ_Plane"), [""])
sketch9.MapMode = "FlatFace"
sketch9.AttachmentOffset = App.Placement(V(0, 0, -34.380464), App.Rotation())
sketch9.addGeometry([
    Part.LineSegment(V(52, 31, 0), V(52, 24, 0)),
    Part.LineSegment(V(52, 24, 0), V(59, 24, 0)),
    Part.LineSegment(V(59, 24, 0), V(59, 31, 0)),
    Part.LineSegment(V(59, 31, 0), V(52, 31, 0)),
], False)
sketch9.addConstraint([
    Sketcher.Constraint("Coincident", 0, 2, 1, 1),
    Sketcher.Constraint("Coincident", 1, 2, 2, 1),
    Sketcher.Constraint("Coincident", 2, 2, 3, 1),
    Sketcher.Constraint("Coincident", 3, 2, 0, 1),
    Sketcher.Constraint("Vertical", 0),
    Sketcher.Constraint("Horizontal", 1),
    Sketcher.Constraint("Vertical", 2),
    Sketcher.Constraint("Horizontal", 3),
    Sketcher.Constraint("Equal", 3, 0),
    Sketcher.Constraint("DistanceX", 1, 1, 1, 2, Q("7 mm")),
    Sketcher.Constraint("DistanceX", -1, 1, 0, 2, Q("52 mm")),
    Sketcher.Constraint("DistanceY", -1, 1, 0, 2, Q("23.55 mm")),
])
sketch9.setExpression("Constraints[9]", "Params.sketch9_width")
pad8 = body.newObject("PartDesign::Pad", "Pad007")
pad8.Profile = sketch9
pad8.Type = "UpToFirst"

# Sketch on XZ plane
sketch10 = body.newObject("Sketcher::SketchObject", "Sketch009")
sketch10.AttachmentSupport = (doc.getObject("XZ_Plane"), [""])
sketch10.MapMode = "FlatFace"
sketch10.AttachmentOffset = App.Placement(V(0, 0, -4.380464), App.Rotation())
sketch10.addGeometry([
    Part.Circle(V(-75.4, -12.8, 0), V(0, 0, 1), 3),  # 0
    Part.Circle(V(-57.9, -12.8, 0), V(0, 0, 1), 3),  # 1
    Part.Circle(V(-114, -12.8, 0), V(0, 0, 1), 3),  # 2
    Part.Circle(V(-19.3, -12.8, 0), V(0, 0, 1), 3),  # 3
    Part.Circle(V(-114, 51.5, 0), V(0, 0, 1), 3),  # 4
    Part.Circle(V(-75.4, 51.5, 0), V(0, 0, 1), 3),  # 5
    Part.Circle(V(-57.9, 51.5, 0), V(0, 0, 1), 3),  # 6
    Part.Circle(V(-19.3, 51.5, 0), V(0, 0, 1), 3),  # 7
    Part.Circle(V(-4.3, 51.5, 0), V(0, 0, 1), 2.5),  # 8
    Part.Circle(V(-4.3, 19.9, 0), V(0, 0, 1), 2.5),  # 9
    Part.Circle(V(37.9, 19.9, 0), V(0, 0, 1), 2.5),  # 10
    Part.Circle(V(37.9, 51.5, 0), V(0, 0, 1), 2.5),  # 11
], False)
sketch10.addConstraint([
    Sketcher.Constraint("Equal", 0, 1),
    Sketcher.Constraint("Equal", 1, 2),
    Sketcher.Constraint("Equal", 2, 3),
    Sketcher.Constraint("Equal", 3, 4),
    Sketcher.Constraint("Equal", 4, 5),
    Sketcher.Constraint("Equal", 5, 6),
    Sketcher.Constraint("Equal", 6, 7),
    Sketcher.Constraint("Equal", 8, 9),
    Sketcher.Constraint("Equal", 9, 10),
    Sketcher.Constraint("Equal", 10, 11),
    Sketcher.Constraint("Horizontal", 0, 3, 1, 3),
    Sketcher.Constraint("Horizontal", 1, 3, 2, 3),
    Sketcher.Constraint("Horizontal", 2, 3, 3, 3),
    Sketcher.Constraint("Horizontal", 4, 3, 5, 3),
    Sketcher.Constraint("Horizontal", 5, 3, 6, 3),
    Sketcher.Constraint("Horizontal", 6, 3, 7, 3),
    Sketcher.Constraint("Horizontal", 7, 3, 8, 3),
    Sketcher.Constraint("Horizontal", 9, 3, 10, 3),
    Sketcher.Constraint("Horizontal", 8, 3, 11, 3),
    Sketcher.Constraint("Vertical", 2, 3, 4, 3),
    Sketcher.Constraint("Vertical", 0, 3, 5, 3),
    Sketcher.Constraint("Vertical", 1, 3, 6, 3),
    Sketcher.Constraint("Vertical", 3, 3, 7, 3),
    Sketcher.Constraint("Vertical", 8, 3, 9, 3),
    Sketcher.Constraint("Vertical", 10, 3, 11, 3),
    Sketcher.Constraint("Diameter", 0, Q("6 mm")),
    Sketcher.Constraint("Diameter", 8, Q("5 mm")),
    Sketcher.Constraint("DistanceX", 2, 3, -1, 1, Q("114 mm")),
    Sketcher.Constraint("DistanceX", 7, 3, 8, 3, Q("15 mm")),
    Sketcher.Constraint("DistanceX", 0, 3, -1, 1, Q("75.4 mm")),
    Sketcher.Constraint("DistanceX", 1, 3, -1, 1, Q("57.9 mm")),
    Sketcher.Constraint("DistanceX", 3, 3, -1, 1, Q("19.3 mm")),
    Sketcher.Constraint("DistanceY", 2, 3, 4, 3, Q("64.4 mm")),
    Sketcher.Constraint("DistanceY", 9, 3, 8, 3, Q("31.6 mm")),
    Sketcher.Constraint("DistanceY", 0, 3, -1, 1, Q("12.85 mm")),
    Sketcher.Constraint("DistanceX", -1, 1, 10, 3, Q("37.87 mm")),
])
sketch10.setExpression("Constraints[25]", "Params.sketch10_diameter")
sketch10.setExpression("Constraints[26]", "Params.sketch10_diameter2")
pad9 = body.newObject("PartDesign::Pad", "Pad008")
pad9.Profile = sketch10
pad9.setExpression("Length", "Params.pad9_length")
pad9.Reversed = True

# Sketch on XZ plane
sketch11 = body.newObject("Sketcher::SketchObject", "Sketch010")
sketch11.AttachmentSupport = (doc.getObject("XZ_Plane"), [""])
sketch11.MapMode = "FlatFace"
sketch11.AttachmentOffset = App.Placement(V(0, 0, -9.380464), App.Rotation())
sketch11.addGeometry([
    Part.Circle(V(-114, 51.5, 0), V(0, 0, 1), 1.5),  # 0
    Part.Circle(V(-114, -12.8, 0), V(0, 0, 1), 1.5),  # 1
    Part.Circle(V(-75.4, -12.8, 0), V(0, 0, 1), 1.5),  # 2
    Part.Circle(V(-75.4, 51.5, 0), V(0, 0, 1), 1.5),  # 3
    Part.Circle(V(-57.9, -12.8, 0), V(0, 0, 1), 1.5),  # 4
    Part.Circle(V(-57.9, 51.5, 0), V(0, 0, 1), 1.5),  # 5
    Part.Circle(V(-19.3, 51.5, 0), V(0, 0, 1), 1.5),  # 6
    Part.Circle(V(-19.3, -12.8, 0), V(0, 0, 1), 1.5),  # 7
    Part.Circle(V(-4.3, 51.5, 0), V(0, 0, 1), 1),  # 8
    Part.Circle(V(-4.3, 19.9, 0), V(0, 0, 1), 1),  # 9
    Part.Circle(V(37.9, 19.9, 0), V(0, 0, 1), 1),  # 10
    Part.Circle(V(37.9, 51.5, 0), V(0, 0, 1), 1),  # 11
], False)
sketch11.addConstraint([
    Sketcher.Constraint("Equal", 0, 1),
    Sketcher.Constraint("Equal", 1, 2),
    Sketcher.Constraint("Equal", 2, 3),
    Sketcher.Constraint("Equal", 3, 4),
    Sketcher.Constraint("Equal", 4, 5),
    Sketcher.Constraint("Equal", 5, 6),
    Sketcher.Constraint("Equal", 6, 7),
    Sketcher.Constraint("Equal", 8, 9),
    Sketcher.Constraint("Equal", 9, 10),
    Sketcher.Constraint("Equal", 10, 11),
    Sketcher.Constraint("Horizontal", 1, 3, 2, 3),
    Sketcher.Constraint("Horizontal", 0, 3, 3, 3),
    Sketcher.Constraint("Horizontal", 2, 3, 4, 3),
    Sketcher.Constraint("Horizontal", 3, 3, 5, 3),
    Sketcher.Constraint("Horizontal", 5, 3, 6, 3),
    Sketcher.Constraint("Horizontal", 4, 3, 7, 3),
    Sketcher.Constraint("Horizontal", 6, 3, 8, 3),
    Sketcher.Constraint("Horizontal", 9, 3, 10, 3),
    Sketcher.Constraint("Horizontal", 8, 3, 11, 3),
    Sketcher.Constraint("Vertical", 0, 3, 1, 3),
    Sketcher.Constraint("Vertical", 2, 3, 3, 3),
    Sketcher.Constraint("Vertical", 4, 3, 5, 3),
    Sketcher.Constraint("Vertical", 6, 3, 7, 3),
    Sketcher.Constraint("Vertical", 8, 3, 9, 3),
    Sketcher.Constraint("Vertical", 10, 3, 11, 3),
    Sketcher.Constraint("Diameter", 0, Q("3 mm")),
    Sketcher.Constraint("Diameter", 8, Q("2 mm")),
    Sketcher.Constraint("DistanceX", 0, 3, -1, 1, Q("114 mm")),
    Sketcher.Constraint("DistanceX", 6, 3, 8, 3, Q("15 mm")),
    Sketcher.Constraint("DistanceX", 2, 3, -1, 1, Q("75.4 mm")),
    Sketcher.Constraint("DistanceX", 4, 3, -1, 1, Q("57.9 mm")),
    Sketcher.Constraint("DistanceX", 6, 3, -1, 1, Q("19.3 mm")),
    Sketcher.Constraint("DistanceY", 1, 3, 0, 3, Q("64.4 mm")),
    Sketcher.Constraint("DistanceY", 9, 3, 8, 3, Q("31.6 mm")),
    Sketcher.Constraint("DistanceY", -1, 1, 0, 3, Q("51.55 mm")),
    Sketcher.Constraint("DistanceX", -1, 1, 10, 3, Q("37.87 mm")),
])
sketch11.setExpression("Constraints[25]", "Params.sketch11_diameter")
sketch11.setExpression("Constraints[26]", "Params.sketch11_diameter2")
pocket2 = body.newObject("PartDesign::Pocket", "Pocket001")
pocket2.Profile = sketch11
pocket2.setExpression("Length", "Params.pocket2_length")
pocket2.Reversed = True

# Sketch on XZ plane
sketch12 = body.newObject("Sketcher::SketchObject", "Sketch011")
sketch12.AttachmentSupport = (doc.getObject("XZ_Plane"), [""])
sketch12.MapMode = "FlatFace"
sketch12.AttachmentOffset = App.Placement(V(0, 0, -4.380464), App.Rotation())
sketch12.addGeometry([
    Part.Circle(V(114, -18.1, 0), V(0, 0, 1), 2),
    Part.Circle(V(34.8, -18.1, 0), V(0, 0, 1), 2),
], False)
sketch12.addConstraint([
    Sketcher.Constraint("Equal", 0, 1),
    Sketcher.Constraint("Horizontal", 0, 3, 1, 3),
    Sketcher.Constraint("Diameter", 0, Q("4 mm")),
    Sketcher.Constraint("DistanceX", 1, 3, 0, 3, Q("79.2 mm")),
    Sketcher.Constraint("DistanceX", -1, 1, 0, 3, Q("114.04 mm")),
    Sketcher.Constraint("DistanceY", 0, 3, -1, 1, Q("18.05 mm")),
])
sketch12.setExpression("Constraints[2]", "Params.sketch12_diameter")
pocket3 = body.newObject("PartDesign::Pocket", "Pocket002")
pocket3.Profile = sketch12
pocket3.setExpression("Length", "Params.pocket3_length")
pocket3.Reversed = True

# Sketch on XZ plane
sketch13 = body.newObject("Sketcher::SketchObject", "Sketch012")
sketch13.AttachmentSupport = (doc.getObject("XZ_Plane"), [""])
sketch13.MapMode = "FlatFace"
sketch13.AttachmentOffset = App.Placement(V(0, 0, -4.380464), App.Rotation())
sketch13.addGeometry([
    Part.LineSegment(V(-83, -79.5, 0), V(-83, -24.6, 0)),  # 0
    Part.LineSegment(V(-83, -24.6, 0), V(30, -24.6, 0)),  # 1
    Part.LineSegment(V(30, -24.6, 0), V(30, -29.1, 0)),  # 2
    Part.LineSegment(V(30, -29.1, 0), V(-78.5, -29.1, 0)),  # 3
    Part.LineSegment(V(-78.5, -29.1, 0), V(-78.5, -79.5, 0)),  # 4
    Part.LineSegment(V(-78.5, -79.5, 0), V(-83, -79.5, 0)),  # 5
    Part.LineSegment(V(119, -29.1, 0), V(119, -24.6, 0)),  # 6
    Part.LineSegment(V(119, -24.6, 0), V(137, -24.6, 0)),  # 7
    Part.LineSegment(V(137, -24.6, 0), V(137, -29.1, 0)),  # 8
    Part.LineSegment(V(137, -29.1, 0), V(119, -29.1, 0)),  # 9
], False)
sketch13.addConstraint([
    Sketcher.Constraint("Coincident", 0, 2, 1, 1),
    Sketcher.Constraint("Coincident", 1, 2, 2, 1),
    Sketcher.Constraint("Coincident", 2, 2, 3, 1),
    Sketcher.Constraint("Coincident", 3, 2, 4, 1),
    Sketcher.Constraint("Coincident", 4, 2, 5, 1),
    Sketcher.Constraint("Coincident", 5, 2, 0, 1),
    Sketcher.Constraint("Coincident", 6, 2, 7, 1),
    Sketcher.Constraint("Coincident", 7, 2, 8, 1),
    Sketcher.Constraint("Coincident", 8, 2, 9, 1),
    Sketcher.Constraint("Coincident", 9, 2, 6, 1),
    Sketcher.Constraint("Vertical", 0),
    Sketcher.Constraint("Horizontal", 1),
    Sketcher.Constraint("Vertical", 2),
    Sketcher.Constraint("Horizontal", 3),
    Sketcher.Constraint("Vertical", 4),
    Sketcher.Constraint("Horizontal", 5),
    Sketcher.Constraint("Vertical", 6),
    Sketcher.Constraint("Horizontal", 7),
    Sketcher.Constraint("Vertical", 8),
    Sketcher.Constraint("Horizontal", 9),
    Sketcher.Constraint("Horizontal", 1, 2, 6, 2),
    Sketcher.Constraint("Horizontal", 3, 2, 8, 2),
    Sketcher.Constraint("Equal", 5, 2),
    Sketcher.Constraint("DistanceX", 1, 1, 1, 2, Q("113 mm")),
    Sketcher.Constraint("DistanceX", 7, 1, 7, 2, Q("18 mm")),
    Sketcher.Constraint("DistanceY", 0, 1, 0, 2, Q("55 mm")),
    Sketcher.Constraint("DistanceX", 3, 2, 3, 1, Q("108.5 mm")),
    Sketcher.Constraint("DistanceX", 0, 2, -1, 1, Q("83 mm")),
    Sketcher.Constraint("DistanceX", -1, 1, 6, 2, Q("119 mm")),
    Sketcher.Constraint("DistanceY", 0, 2, -1, 1, Q("24.55 mm")),
])
sketch13.setExpression("Constraints[23]", "Params.sketch13_width")
sketch13.setExpression("Constraints[24]", "Params.sketch13_width2")
sketch13.setExpression("Constraints[25]", "Params.sketch13_height")
sketch13.setExpression("Constraints[26]", "Params.sketch13_width3")
pad10 = body.newObject("PartDesign::Pad", "Pad009")
pad10.Profile = sketch13
pad10.setExpression("Length", "Params.pad10_length")
pad10.Reversed = True

# Sketch on XZ plane
sketch14 = body.newObject("Sketcher::SketchObject", "Sketch013")
sketch14.AttachmentSupport = (doc.getObject("XZ_Plane"), [""])
sketch14.MapMode = "FlatFace"
sketch14.AttachmentOffset = App.Placement(V(0, 0, -41.380464), App.Rotation())
sketch14.addGeometry([
    Part.Circle(V(56.5, 28.1, 0), V(0, 0, 1), 2),
    Part.Circle(V(114.5, 28.1, 0), V(0, 0, 1), 2),
    Part.Circle(V(114.5, 77, 0), V(0, 0, 1), 2),
    Part.Circle(V(56.5, 77, 0), V(0, 0, 1), 2),
], False)
sketch14.addConstraint([
    Sketcher.Constraint("Equal", 0, 1),
    Sketcher.Constraint("Equal", 1, 2),
    Sketcher.Constraint("Equal", 2, 3),
    Sketcher.Constraint("Horizontal", 0, 3, 1, 3),
    Sketcher.Constraint("Horizontal", 2, 3, 3, 3),
    Sketcher.Constraint("Vertical", 1, 3, 2, 3),
    Sketcher.Constraint("Vertical", 0, 3, 3, 3),
    Sketcher.Constraint("Diameter", 0, Q("4 mm")),
    Sketcher.Constraint("DistanceX", 0, 3, 1, 3, Q("58 mm")),
    Sketcher.Constraint("DistanceY", 1, 3, 2, 3, Q("49 mm")),
    Sketcher.Constraint("DistanceX", -1, 1, 0, 3, Q("56.5 mm")),
    Sketcher.Constraint("DistanceY", -1, 1, 0, 3, Q("28.05 mm")),
])
sketch14.setExpression("Constraints[7]", "Params.sketch14_diameter")
pocket4 = body.newObject("PartDesign::Pocket", "Pocket003")
pocket4.Profile = sketch14
pocket4.setExpression("Length", "Params.pocket4_length")
pocket4.Reversed = True

doc.recompute()
